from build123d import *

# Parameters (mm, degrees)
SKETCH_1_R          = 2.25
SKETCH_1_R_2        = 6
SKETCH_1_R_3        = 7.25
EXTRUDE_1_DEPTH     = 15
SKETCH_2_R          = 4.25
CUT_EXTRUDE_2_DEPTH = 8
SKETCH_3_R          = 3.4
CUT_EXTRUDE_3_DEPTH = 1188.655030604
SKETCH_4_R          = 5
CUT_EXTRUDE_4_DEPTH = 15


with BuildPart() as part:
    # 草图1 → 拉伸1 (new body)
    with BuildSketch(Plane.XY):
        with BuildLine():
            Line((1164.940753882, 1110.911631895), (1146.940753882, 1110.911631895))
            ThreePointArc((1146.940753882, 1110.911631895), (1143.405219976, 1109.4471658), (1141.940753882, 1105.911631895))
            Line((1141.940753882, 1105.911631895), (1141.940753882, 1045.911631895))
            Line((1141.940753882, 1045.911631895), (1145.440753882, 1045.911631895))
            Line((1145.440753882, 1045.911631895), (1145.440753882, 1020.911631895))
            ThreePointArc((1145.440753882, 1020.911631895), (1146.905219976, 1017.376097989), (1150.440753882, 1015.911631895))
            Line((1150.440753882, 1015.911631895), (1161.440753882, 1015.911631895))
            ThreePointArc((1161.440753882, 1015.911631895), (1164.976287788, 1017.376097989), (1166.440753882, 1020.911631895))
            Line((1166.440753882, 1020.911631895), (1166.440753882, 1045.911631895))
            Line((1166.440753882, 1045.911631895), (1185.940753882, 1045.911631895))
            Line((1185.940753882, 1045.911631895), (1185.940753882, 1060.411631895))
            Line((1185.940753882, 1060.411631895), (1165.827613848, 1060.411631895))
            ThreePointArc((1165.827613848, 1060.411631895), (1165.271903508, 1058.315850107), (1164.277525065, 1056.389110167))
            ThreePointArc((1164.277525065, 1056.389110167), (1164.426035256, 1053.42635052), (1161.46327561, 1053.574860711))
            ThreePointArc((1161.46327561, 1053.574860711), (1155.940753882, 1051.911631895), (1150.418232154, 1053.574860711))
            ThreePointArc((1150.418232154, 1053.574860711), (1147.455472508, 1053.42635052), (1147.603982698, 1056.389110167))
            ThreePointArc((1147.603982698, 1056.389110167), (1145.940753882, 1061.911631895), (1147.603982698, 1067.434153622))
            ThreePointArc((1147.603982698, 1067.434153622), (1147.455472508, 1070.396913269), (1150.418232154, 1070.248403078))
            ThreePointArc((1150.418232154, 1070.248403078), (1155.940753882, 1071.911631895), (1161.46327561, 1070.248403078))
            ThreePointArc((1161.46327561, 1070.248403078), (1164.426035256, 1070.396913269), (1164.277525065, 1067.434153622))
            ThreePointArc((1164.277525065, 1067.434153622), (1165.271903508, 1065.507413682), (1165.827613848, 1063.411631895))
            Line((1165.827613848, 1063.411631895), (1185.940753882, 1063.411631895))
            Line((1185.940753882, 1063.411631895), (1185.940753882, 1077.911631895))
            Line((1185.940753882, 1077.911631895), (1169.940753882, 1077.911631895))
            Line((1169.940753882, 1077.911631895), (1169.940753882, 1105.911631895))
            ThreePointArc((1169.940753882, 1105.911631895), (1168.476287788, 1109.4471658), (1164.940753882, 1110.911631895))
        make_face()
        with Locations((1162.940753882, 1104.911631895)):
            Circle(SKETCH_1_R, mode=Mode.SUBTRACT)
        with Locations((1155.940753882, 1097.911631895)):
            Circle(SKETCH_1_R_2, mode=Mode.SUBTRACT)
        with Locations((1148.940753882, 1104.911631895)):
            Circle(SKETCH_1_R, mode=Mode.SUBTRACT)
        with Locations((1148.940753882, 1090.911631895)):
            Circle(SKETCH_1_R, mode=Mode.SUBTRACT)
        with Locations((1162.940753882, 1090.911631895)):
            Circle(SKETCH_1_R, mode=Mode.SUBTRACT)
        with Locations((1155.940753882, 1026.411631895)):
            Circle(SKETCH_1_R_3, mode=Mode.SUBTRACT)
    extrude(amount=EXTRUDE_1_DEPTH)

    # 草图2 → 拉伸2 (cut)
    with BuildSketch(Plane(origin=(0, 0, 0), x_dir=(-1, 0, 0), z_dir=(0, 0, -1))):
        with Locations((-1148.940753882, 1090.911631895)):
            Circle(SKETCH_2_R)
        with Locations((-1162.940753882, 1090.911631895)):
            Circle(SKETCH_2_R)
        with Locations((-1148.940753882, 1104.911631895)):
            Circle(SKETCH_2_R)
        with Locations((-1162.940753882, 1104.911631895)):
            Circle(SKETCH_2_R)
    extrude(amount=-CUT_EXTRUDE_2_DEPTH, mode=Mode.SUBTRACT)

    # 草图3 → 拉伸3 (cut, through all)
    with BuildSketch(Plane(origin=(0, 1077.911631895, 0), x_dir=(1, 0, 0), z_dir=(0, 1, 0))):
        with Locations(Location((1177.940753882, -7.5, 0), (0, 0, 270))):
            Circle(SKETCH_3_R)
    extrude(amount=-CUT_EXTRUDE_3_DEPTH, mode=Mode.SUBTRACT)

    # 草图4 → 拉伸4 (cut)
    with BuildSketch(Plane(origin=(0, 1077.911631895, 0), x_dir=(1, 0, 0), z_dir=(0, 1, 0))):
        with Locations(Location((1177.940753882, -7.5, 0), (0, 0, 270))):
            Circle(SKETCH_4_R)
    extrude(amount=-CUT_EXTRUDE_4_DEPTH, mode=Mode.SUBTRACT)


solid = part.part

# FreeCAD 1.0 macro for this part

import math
import FreeCAD as App
import Part
import Sketcher

doc = App.newDocument("Part")
params = doc.addObject("Spreadsheet::Sheet", "Params")
for row, (alias, value) in enumerate([
    ("sketch1_diameter", "12 mm"),
    ("sketch1_radius", "5 mm"),
    ("sketch1_radius2", "10 mm"),
    ("sketch1_radius3", "2 mm"),
    ("sketch1_diameter2", "14.5 mm"),
    ("pad1_length", "15 mm"),
    ("sketch2_diameter", "8.5 mm"),
    ("pocket1_length", "8 mm"),
    ("sketch3_diameter", "6.8 mm"),
    ("sketch4_diameter", "10 mm"),
    ("pocket3_length", "15 mm"),
], start=1):
    params.set(f"A{row}", alias)
    params.set(f"B{row}", "=" + value)
    params.setAlias(f"B{row}", alias)

body = doc.addObject("PartDesign::Body", "Body")

# Sketch on XY plane
sketch1 = body.newObject("Sketcher::SketchObject", "Sketch")
sketch1.AttachmentSupport = (doc.getObject("XY_Plane"), [""])
sketch1.MapMode = "FlatFace"
sketch1.addGeometry(Part.LineSegment(App.Vector(1164.9, 1110.9, 0), App.Vector(1146.9, 1110.9, 0)), False)
sketch1.addGeometry(Part.ArcOfCircle(Part.Circle(App.Vector(1146.9, 1105.9, 0), App.Vector(0, 0, 1), 5), math.radians(90), math.radians(180)), False)
sketch1.addGeometry(Part.LineSegment(App.Vector(1141.9, 1105.9, 0), App.Vector(1141.9, 1045.9, 0)), False)
sketch1.addGeometry(Part.LineSegment(App.Vector(1141.9, 1045.9, 0), App.Vector(1145.4, 1045.9, 0)), False)
sketch1.addGeometry(Part.LineSegment(App.Vector(1145.4, 1045.9, 0), App.Vector(1145.4, 1020.9, 0)), False)
sketch1.addGeometry(Part.ArcOfCircle(Part.Circle(App.Vector(1150.4, 1020.9, 0), App.Vector(0, 0, 1), 5), math.radians(180), math.radians(270)), False)
sketch1.addGeometry(Part.LineSegment(App.Vector(1150.4, 1015.9, 0), App.Vector(1161.4, 1015.9, 0)), False)
sketch1.addGeometry(Part.ArcOfCircle(Part.Circle(App.Vector(1161.4, 1020.9, 0), App.Vector(0, 0, 1), 5), math.radians(-90), math.radians(0)), False)
sketch1.addGeometry(Part.LineSegment(App.Vector(1166.4, 1020.9, 0), App.Vector(1166.4, 1045.9, 0)), False)
sketch1.addGeometry(Part.LineSegment(App.Vector(1166.4, 1045.9, 0), App.Vector(1185.9, 1045.9, 0)), False)
sketch1.addGeometry(Part.LineSegment(App.Vector(1185.9, 1045.9, 0), App.Vector(1185.9, 1060.4, 0)), False)
sketch1.addGeometry(Part.LineSegment(App.Vector(1185.9, 1060.4, 0), App.Vector(1165.8, 1060.4, 0)), False)
sketch1.addGeometry(Part.ArcOfCircle(Part.Circle(App.Vector(1155.9, 1061.9, 0), App.Vector(0, 0, 1), 10), math.radians(-34), math.radians(-9)), False)
sketch1.addGeometry(Part.ArcOfCircle(Part.Circle(App.Vector(1163, 1054.8, 0), App.Vector(0, 0, 1), 2), math.radians(-141), math.radians(51)), False)
sketch1.addGeometry(Part.ArcOfCircle(Part.Circle(App.Vector(1155.9, 1061.9, 0), App.Vector(0, 0, 1), 10), math.radians(-124), math.radians(-56)), False)
sketch1.addGeometry(Part.ArcOfCircle(Part.Circle(App.Vector(1148.9, 1054.8, 0), App.Vector(0, 0, 1), 2), math.radians(129), math.radians(321)), False)
sketch1.addGeometry(Part.ArcOfCircle(Part.Circle(App.Vector(1155.9, 1061.9, 0), App.Vector(0, 0, 1), 10), math.radians(146), math.radians(214)), False)
sketch1.addGeometry(Part.ArcOfCircle(Part.Circle(App.Vector(1148.9, 1069, 0), App.Vector(0, 0, 1), 2), math.radians(39), math.radians(231)), False)
sketch1.addGeometry(Part.ArcOfCircle(Part.Circle(App.Vector(1155.9, 1061.9, 0), App.Vector(0, 0, 1), 10), math.radians(56), math.radians(124)), False)
sketch1.addGeometry(Part.ArcOfCircle(Part.Circle(App.Vector(1163, 1069, 0), App.Vector(0, 0, 1), 2), math.radians(-51), math.radians(141)), False)
sketch1.addGeometry(Part.ArcOfCircle(Part.Circle(App.Vector(1155.9, 1061.9, 0), App.Vector(0, 0, 1), 10), math.radians(9), math.radians(34)), False)
sketch1.addGeometry(Part.LineSegment(App.Vector(1165.8, 1063.4, 0), App.Vector(1185.9, 1063.4, 0)), False)
sketch1.addGeometry(Part.LineSegment(App.Vector(1185.9, 1063.4, 0), App.Vector(1185.9, 1077.9, 0)), False)
sketch1.addGeometry(Part.LineSegment(App.Vector(1185.9, 1077.9, 0), App.Vector(1169.9, 1077.9, 0)), False)
sketch1.addGeometry(Part.LineSegment(App.Vector(1169.9, 1077.9, 0), App.Vector(1169.9, 1105.9, 0)), False)
sketch1.addGeometry(Part.ArcOfCircle(Part.Circle(App.Vector(1164.9, 1105.9, 0), App.Vector(0, 0, 1), 5), math.radians(0), math.radians(90)), False)
sketch1.addGeometry(Part.Circle(App.Vector(1155.9, 1026.4, 0), App.Vector(0, 0, 1), 7.2), False)
sketch1.addGeometry(Part.Circle(App.Vector(1148.9, 1090.9, 0), App.Vector(0, 0, 1), 2.2), False)
sketch1.addGeometry(Part.Circle(App.Vector(1148.9, 1104.9, 0), App.Vector(0, 0, 1), 2.2), False)
sketch1.addGeometry(Part.Circle(App.Vector(1155.9, 1097.9, 0), App.Vector(0, 0, 1), 6), False)
sketch1.addGeometry(Part.Circle(App.Vector(1162.9, 1090.9, 0), App.Vector(0, 0, 1), 2.2), False)
sketch1.addGeometry(Part.Circle(App.Vector(1162.9, 1104.9, 0), App.Vector(0, 0, 1), 2.2), False)
sketch1.addConstraint(Sketcher.Constraint("Tangent", 0, 2, 1, 1))
sketch1.addConstraint(Sketcher.Constraint("Tangent", 1, 2, 2, 1))
sketch1.addConstraint(Sketcher.Constraint("Coincident", 2, 2, 3, 1))
sketch1.addConstraint(Sketcher.Constraint("Coincident", 3, 2, 4, 1))
sketch1.addConstraint(Sketcher.Constraint("Tangent", 4, 2, 5, 1))
sketch1.addConstraint(Sketcher.Constraint("Tangent", 5, 2, 6, 1))
sketch1.addConstraint(Sketcher.Constraint("Tangent", 6, 2, 7, 1))
sketch1.addConstraint(Sketcher.Constraint("Tangent", 7, 2, 8, 1))
sketch1.addConstraint(Sketcher.Constraint("Coincident", 8, 2, 9, 1))
sketch1.addConstraint(Sketcher.Constraint("Coincident", 9, 2, 10, 1))
sketch1.addConstraint(Sketcher.Constraint("Coincident", 10, 2, 11, 1))
sketch1.addConstraint(Sketcher.Constraint("Coincident", 11, 2, 12, 2))
sketch1.addConstraint(Sketcher.Constraint("Coincident", 12, 1, 13, 2))
sketch1.addConstraint(Sketcher.Constraint("Coincident", 13, 1, 14, 2))
sketch1.addConstraint(Sketcher.Constraint("Coincident", 14, 1, 15, 2))
sketch1.addConstraint(Sketcher.Constraint("Coincident", 15, 1, 16, 2))
sketch1.addConstraint(Sketcher.Constraint("Coincident", 16, 1, 17, 2))
sketch1.addConstraint(Sketcher.Constraint("Coincident", 17, 1, 18, 2))
sketch1.addConstraint(Sketcher.Constraint("Coincident", 18, 1, 19, 2))
sketch1.addConstraint(Sketcher.Constraint("Coincident", 19, 1, 20, 2))
sketch1.addConstraint(Sketcher.Constraint("Coincident", 20, 1, 21, 1))
sketch1.addConstraint(Sketcher.Constraint("Coincident", 21, 2, 22, 1))
sketch1.addConstraint(Sketcher.Constraint("Coincident", 22, 2, 23, 1))
sketch1.addConstraint(Sketcher.Constraint("Coincident", 23, 2, 24, 1))
sketch1.addConstraint(Sketcher.Constraint("Tangent", 24, 2, 25, 1))
sketch1.addConstraint(Sketcher.Constraint("Tangent", 25, 2, 0, 1))
sketch1.addConstraint(Sketcher.Constraint("Horizontal", 0))
sketch1.addConstraint(Sketcher.Constraint("Vertical", 2))
sketch1.addConstraint(Sketcher.Constraint("Horizontal", 3))
sketch1.addConstraint(Sketcher.Constraint("Vertical", 4))
sketch1.addConstraint(Sketcher.Constraint("Horizontal", 6))
sketch1.addConstraint(Sketcher.Constraint("Vertical", 8))
sketch1.addConstraint(Sketcher.Constraint("Horizontal", 9))
sketch1.addConstraint(Sketcher.Constraint("Vertical", 10))
sketch1.addConstraint(Sketcher.Constraint("Horizontal", 11))
sketch1.addConstraint(Sketcher.Constraint("Horizontal", 21))
sketch1.addConstraint(Sketcher.Constraint("Vertical", 22))
sketch1.addConstraint(Sketcher.Constraint("Horizontal", 23))
sketch1.addConstraint(Sketcher.Constraint("Vertical", 24))
sketch1.addConstraint(Sketcher.Constraint("Coincident", 14, 3, 12, 3))
sketch1.addConstraint(Sketcher.Constraint("Coincident", 16, 3, 12, 3))
sketch1.addConstraint(Sketcher.Constraint("Coincident", 18, 3, 12, 3))
sketch1.addConstraint(Sketcher.Constraint("Coincident", 20, 3, 12, 3))
sketch1.addConstraint(Sketcher.Constraint("Equal", 1, 5))
sketch1.addConstraint(Sketcher.Constraint("Equal", 5, 7))
sketch1.addConstraint(Sketcher.Constraint("Equal", 12, 14))
sketch1.addConstraint(Sketcher.Constraint("Equal", 13, 15))
sketch1.addConstraint(Sketcher.Constraint("Equal", 14, 16))
sketch1.addConstraint(Sketcher.Constraint("Equal", 15, 17))
sketch1.addConstraint(Sketcher.Constraint("Equal", 16, 18))
sketch1.addConstraint(Sketcher.Constraint("Equal", 17, 19))
sketch1.addConstraint(Sketcher.Constraint("Equal", 18, 20))
sketch1.addConstraint(Sketcher.Constraint("Equal", 7, 25))
sketch1.addConstraint(Sketcher.Constraint("Equal", 27, 28))
sketch1.addConstraint(Sketcher.Constraint("Equal", 28, 30))
sketch1.addConstraint(Sketcher.Constraint("Equal", 30, 31))
sketch1.addConstraint(Sketcher.Constraint("Horizontal", 13, 3, 15, 3))
sketch1.addConstraint(Sketcher.Constraint("Horizontal", 17, 3, 19, 3))
sketch1.addConstraint(Sketcher.Constraint("Horizontal", 27, 3, 30, 3))
sketch1.addConstraint(Sketcher.Constraint("Horizontal", 28, 3, 31, 3))
sketch1.addConstraint(Sketcher.Constraint("Horizontal", 3, 2, 8, 2))
sketch1.addConstraint(Sketcher.Constraint("Horizontal", 13, 1, 14, 1))
sketch1.addConstraint(Sketcher.Constraint("Horizontal", 17, 1, 18, 1))
sketch1.addConstraint(Sketcher.Constraint("Vertical", 15, 3, 17, 3))
sketch1.addConstraint(Sketcher.Constraint("Vertical", 20, 3, 26, 3))
sketch1.addConstraint(Sketcher.Constraint("Vertical", 27, 3, 28, 3))
sketch1.addConstraint(Sketcher.Constraint("Vertical", 26, 3, 29, 3))
sketch1.addConstraint(Sketcher.Constraint("Vertical", 30, 3, 31, 3))
sketch1.addConstraint(Sketcher.Constraint("Vertical", 15, 1, 16, 1))
sketch1.addConstraint(Sketcher.Constraint("Vertical", 11, 2, 20, 1))
sketch1.addConstraint(Sketcher.Constraint("Vertical", 10, 2, 21, 2))
sketch1.addConstraint(Sketcher.Constraint("Equal", 10, 22))
sketch1.addConstraint(Sketcher.Constraint("Diameter", 29, 12.0))
sketch1.addConstraint(Sketcher.Constraint("Radius", 1, 5.0))
sketch1.addConstraint(Sketcher.Constraint("Radius", 12, 10.0))
sketch1.addConstraint(Sketcher.Constraint("Radius", 13, 2.0))
sketch1.addConstraint(Sketcher.Constraint("Diameter", 26, 14.5))
sketch1.addConstraint(Sketcher.Constraint("Diameter", 27, 4.5))
sketch1.addConstraint(Sketcher.Constraint("DistanceX", 0, 2, 0, 1, 18.0))
sketch1.addConstraint(Sketcher.Constraint("DistanceX", 6, 1, 6, 2, 11.0))
sketch1.addConstraint(Sketcher.Constraint("DistanceX", 23, 2, 23, 1, 16.0))
sketch1.addConstraint(Sketcher.Constraint("DistanceY", 2, 2, 2, 1, 60.0))
sketch1.addConstraint(Sketcher.Constraint("DistanceY", 4, 2, 4, 1, 25.0))
sketch1.addConstraint(Sketcher.Constraint("DistanceY", 24, 1, 24, 2, 28.0))
sketch1.addConstraint(Sketcher.Constraint("DistanceX", 3, 1, 3, 2, 3.5))
sketch1.addConstraint(Sketcher.Constraint("DistanceY", 10, 1, 10, 2, 14.5))
sketch1.addConstraint(Sketcher.Constraint("DistanceX", 1, 3, 12, 3, 9.0))
sketch1.addConstraint(Sketcher.Constraint("DistanceX", 1, 3, 27, 3, 2.0))
sketch1.addConstraint(Sketcher.Constraint("DistanceY", 27, 3, 1, 3, 15.0))
sketch1.addConstraint(Sketcher.Constraint("DistanceY", 28, 3, 1, 3, 1.0))
sketch1.addConstraint(Sketcher.Constraint("DistanceY", 27, 3, 29, 3, 7.0))
sketch1.addConstraint(Sketcher.Constraint("DistanceX", 29, 3, 30, 3, 7.0))
sketch1.addConstraint(Sketcher.Constraint("DistanceY", 5, 3, 26, 3, 5.5))
sketch1.addConstraint(Sketcher.Constraint("DistanceY", -1, 1, 17, 3, 1068.9827))
sketch1.addConstraint(Sketcher.Constraint("DistanceY", -1, 1, 1, 3, 1105.911632))
sketch1.addConstraint(Sketcher.Constraint("DistanceX", -1, 1, 13, 3, 1163.011822))
sketch1.addConstraint(Sketcher.Constraint("DistanceY", -1, 1, 12, 1, 1056.38911))
sketch1.setExpression("Constraints[72]", "Params.sketch1_diameter")
sketch1.setExpression("Constraints[73]", "Params.sketch1_radius")
sketch1.setExpression("Constraints[74]", "Params.sketch1_radius2")
sketch1.setExpression("Constraints[75]", "Params.sketch1_radius3")
sketch1.setExpression("Constraints[76]", "Params.sketch1_diameter2")
pad1 = body.newObject("PartDesign::Pad", "Pad")
pad1.Profile = sketch1
pad1.setExpression("Length", "Params.pad1_length")

# Sketch on XY plane
sketch2 = body.newObject("Sketcher::SketchObject", "Sketch001")
sketch2.AttachmentSupport = (doc.getObject("XY_Plane"), [""])
sketch2.MapMode = "FlatFace"
sketch2.addGeometry(Part.Circle(App.Vector(1148.9, 1090.9, 0), App.Vector(0, 0, 1), 4.2), False)
sketch2.addGeometry(Part.Circle(App.Vector(1162.9, 1090.9, 0), App.Vector(0, 0, 1), 4.2), False)
sketch2.addGeometry(Part.Circle(App.Vector(1148.9, 1104.9, 0), App.Vector(0, 0, 1), 4.2), False)
sketch2.addGeometry(Part.Circle(App.Vector(1162.9, 1104.9, 0), App.Vector(0, 0, 1), 4.2), False)
sketch2.addConstraint(Sketcher.Constraint("Equal", 0, 1))
sketch2.addConstraint(Sketcher.Constraint("Equal", 1, 2))
sketch2.addConstraint(Sketcher.Constraint("Equal", 2, 3))
sketch2.addConstraint(Sketcher.Constraint("Horizontal", 0, 3, 1, 3))
sketch2.addConstraint(Sketcher.Constraint("Horizontal", 2, 3, 3, 3))
sketch2.addConstraint(Sketcher.Constraint("Vertical", 0, 3, 2, 3))
sketch2.addConstraint(Sketcher.Constraint("Vertical", 1, 3, 3, 3))
sketch2.addConstraint(Sketcher.Constraint("Diameter", 0, 8.5))
sketch2.addConstraint(Sketcher.Constraint("DistanceX", 0, 3, 1, 3, 14.0))
sketch2.addConstraint(Sketcher.Constraint("DistanceY", 0, 3, 2, 3, 14.0))
sketch2.addConstraint(Sketcher.Constraint("DistanceY", -1, 1, 0, 3, 1090.911632))
sketch2.addConstraint(Sketcher.Constraint("DistanceX", -1, 1, 0, 3, 1148.940754))
sketch2.setExpression("Constraints[7]", "Params.sketch2_diameter")
pocket1 = body.newObject("PartDesign::Pocket", "Pocket")
pocket1.Profile = sketch2
pocket1.setExpression("Length", "Params.pocket1_length")
pocket1.Reversed = True

# Sketch on XZ plane
sketch3 = body.newObject("Sketcher::SketchObject", "Sketch002")
sketch3.AttachmentSupport = (doc.getObject("XZ_Plane"), [""])
sketch3.MapMode = "FlatFace"
sketch3.AttachmentOffset = App.Placement(App.Vector(0, 0, -1077.911632), App.Rotation())
sketch3.addGeometry(Part.Circle(App.Vector(1177.9, 7.5, 0), App.Vector(0, 0, 1), 3.4), False)
sketch3.addConstraint(Sketcher.Constraint("Diameter", 0, 6.8))
sketch3.addConstraint(Sketcher.Constraint("DistanceY", -1, 1, 0, 3, 7.5))
sketch3.addConstraint(Sketcher.Constraint("DistanceX", -1, 1, 0, 3, 1177.940754))
sketch3.setExpression("Constraints[0]", "Params.sketch3_diameter")
pocket2 = body.newObject("PartDesign::Pocket", "Pocket001")
pocket2.Profile = sketch3
pocket2.Type = "ThroughAll"
pocket2.Reversed = True

# Sketch on XZ plane
sketch4 = body.newObject("Sketcher::SketchObject", "Sketch003")
sketch4.AttachmentSupport = (doc.getObject("XZ_Plane"), [""])
sketch4.MapMode = "FlatFace"
sketch4.AttachmentOffset = App.Placement(App.Vector(0, 0, -1077.911632), App.Rotation())
sketch4.addGeometry(Part.Circle(App.Vector(1178, 8, 0), App.Vector(0, 0, 1), 5), False)
sketch4.addConstraint(Sketcher.Constraint("Diameter", 0, 10.0))
sketch4.addConstraint(Sketcher.Constraint("DistanceY", -1, 1, 0, 3, 7.5))
sketch4.addConstraint(Sketcher.Constraint("DistanceX", -1, 1, 0, 3, 1177.940754))
sketch4.setExpression("Constraints[0]", "Params.sketch4_diameter")
pocket3 = body.newObject("PartDesign::Pocket", "Pocket002")
pocket3.Profile = sketch4
pocket3.setExpression("Length", "Params.pocket3_length")
pocket3.Reversed = True

doc.recompute()
